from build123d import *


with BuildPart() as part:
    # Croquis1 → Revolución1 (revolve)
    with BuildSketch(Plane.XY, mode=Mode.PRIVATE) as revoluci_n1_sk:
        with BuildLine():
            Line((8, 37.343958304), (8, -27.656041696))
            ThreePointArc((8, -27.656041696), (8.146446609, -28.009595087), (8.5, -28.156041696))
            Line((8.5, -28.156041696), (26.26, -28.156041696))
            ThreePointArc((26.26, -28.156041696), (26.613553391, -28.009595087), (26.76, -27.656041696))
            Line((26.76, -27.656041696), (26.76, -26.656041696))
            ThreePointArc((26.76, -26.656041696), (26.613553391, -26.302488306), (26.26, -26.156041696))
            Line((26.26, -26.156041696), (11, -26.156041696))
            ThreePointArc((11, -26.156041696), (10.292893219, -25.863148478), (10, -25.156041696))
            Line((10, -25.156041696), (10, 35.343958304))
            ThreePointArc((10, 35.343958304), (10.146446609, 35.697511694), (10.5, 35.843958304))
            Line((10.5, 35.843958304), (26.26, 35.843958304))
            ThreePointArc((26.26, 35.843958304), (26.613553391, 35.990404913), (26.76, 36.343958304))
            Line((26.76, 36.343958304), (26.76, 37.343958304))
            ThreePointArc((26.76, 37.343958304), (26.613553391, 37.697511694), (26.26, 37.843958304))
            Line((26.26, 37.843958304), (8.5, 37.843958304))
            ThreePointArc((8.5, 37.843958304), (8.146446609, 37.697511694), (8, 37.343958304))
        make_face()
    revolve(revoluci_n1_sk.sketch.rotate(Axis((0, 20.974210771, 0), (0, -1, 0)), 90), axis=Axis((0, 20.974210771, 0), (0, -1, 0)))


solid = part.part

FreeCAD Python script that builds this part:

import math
import FreeCAD as App
import Part
import Sketcher
from FreeCAD import Vector
Q = App.Units.Quantity

doc = App.newDocument("Part")
body = doc.addObject("PartDesign::Body", "Body")

# Sketch on XY plane
sketch1 = doc.addObject("Sketcher::SketchObject", "Sketch")
body.addObject(sketch1)
sketch1.AttachmentSupport = (doc.XY_Plane, [""])
sketch1.MapMode = "FlatFace"
sketch1.addGeometry([
    Part.LineSegment(Vector(8, 37.34, 0), Vector(8, -27.66, 0)),  # 0
    Part.ArcOfCircle(Part.Circle(Vector(8.5, -27.66, 0), Vector(0, 0, 1), 0.5), math.radians(180), math.radians(270)),  # 1
    Part.LineSegment(Vector(8.5, -28.16, 0), Vector(26.26, -28.16, 0)),  # 2
    Part.ArcOfCircle(Part.Circle(Vector(26.26, -27.66, 0), Vector(0, 0, 1), 0.5), math.radians(-90), math.radians(0)),  # 3
    Part.LineSegment(Vector(26.76, -27.66, 0), Vector(26.76, -26.66, 0)),  # 4
    Part.ArcOfCircle(Part.Circle(Vector(26.26, -26.66, 0), Vector(0, 0, 1), 0.5), math.radians(0), math.radians(90)),  # 5
    Part.LineSegment(Vector(26.26, -26.16, 0), Vector(11, -26.16, 0)),  # 6
    Part.ArcOfCircle(Part.Circle(Vector(11, -25.16, 0), Vector(0, 0, 1), 1), math.radians(180), math.radians(270)),  # 7
    Part.LineSegment(Vector(10, -25.16, 0), Vector(10, 35.34, 0)),  # 8
    Part.ArcOfCircle(Part.Circle(Vector(10.5, 35.34, 0), Vector(0, 0, 1), 0.5), math.radians(90), math.radians(180)),  # 9
    Part.LineSegment(Vector(10.5, 35.84, 0), Vector(26.26, 35.84, 0)),  # 10
    Part.ArcOfCircle(Part.Circle(Vector(26.26, 36.34, 0), Vector(0, 0, 1), 0.5), math.radians(-90), math.radians(0)),  # 11
    Part.LineSegment(Vector(26.76, 36.34, 0), Vector(26.76, 37.34, 0)),  # 12
    Part.ArcOfCircle(Part.Circle(Vector(26.26, 37.34, 0), Vector(0, 0, 1), 0.5), math.radians(0), math.radians(90)),  # 13
    Part.LineSegment(Vector(26.26, 37.84, 0), Vector(8.5, 37.84, 0)),  # 14
    Part.ArcOfCircle(Part.Circle(Vector(8.5, 37.34, 0), Vector(0, 0, 1), 0.5), math.radians(90), math.radians(180)),  # 15
], False)
sketch1.addConstraint([
    Sketcher.Constraint("Tangent", 0, 2, 1, 1),
    Sketcher.Constraint("Tangent", 1, 2, 2, 1),
    Sketcher.Constraint("Tangent", 2, 2, 3, 1),
    Sketcher.Constraint("Tangent", 3, 2, 4, 1),
    Sketcher.Constraint("Tangent", 4, 2, 5, 1),
    Sketcher.Constraint("Tangent", 5, 2, 6, 1),
    Sketcher.Constraint("Tangent", 6, 2, 7, 2),
    Sketcher.Constraint("Tangent", 7, 1, 8, 1),
    Sketcher.Constraint("Tangent", 8, 2, 9, 2),
    Sketcher.Constraint("Tangent", 9, 1, 10, 1),
    Sketcher.Constraint("Tangent", 10, 2, 11, 1),
    Sketcher.Constraint("Tangent", 11, 2, 12, 1),
    Sketcher.Constraint("Tangent", 12, 2, 13, 1),
    Sketcher.Constraint("Tangent", 13, 2, 14, 1),
    Sketcher.Constraint("Tangent", 14, 2, 15, 1),
    Sketcher.Constraint("Tangent", 15, 2, 0, 1),
    Sketcher.Constraint("Vertical", 0),
    Sketcher.Constraint("Horizontal", 2),
    Sketcher.Constraint("Vertical", 4),
    Sketcher.Constraint("Horizontal", 6),
    Sketcher.Constraint("Vertical", 8),
    Sketcher.Constraint("Horizontal", 10),
    Sketcher.Constraint("Vertical", 12),
    Sketcher.Constraint("Horizontal", 14),
    Sketcher.Constraint("Equal", 1, 3),
    Sketcher.Constraint("Equal", 3, 5),
    Sketcher.Constraint("Equal", 5, 9),
    Sketcher.Constraint("Equal", 9, 11),
    Sketcher.Constraint("Equal", 11, 13),
    Sketcher.Constraint("Equal", 13, 15),
    Sketcher.Constraint("Vertical", 5, 3, 11, 3),
    Sketcher.Constraint("Equal", 4, 12),
    Sketcher.Constraint("Radius", 7, Q("1 mm")),
    Sketcher.Constraint("Radius", 1, Q("0.5 mm")),
    Sketcher.Constraint("DistanceY", 0, 2, 0, 1, Q("65 mm")),
    Sketcher.Constraint("DistanceY", 4, 1, 4, 2, Q("1 mm")),
    Sketcher.Constraint("DistanceX", -1, 1, 7, 3, Q("11 mm")),
    Sketcher.Constraint("DistanceX", -1, 1, 0, 2, Q("8 mm")),
    Sketcher.Constraint("DistanceX", 2, 1, 2, 2, Q("17.76 mm")),
    Sketcher.Constraint("DistanceY", 1, 3, -1, 1, Q("27.656042 mm")),
])
revolution = doc.addObject("PartDesign::Revolution", "Revolution")
body.addObject(revolution)
revolution.Profile = sketch1
revolution.ReferenceAxis = (sketch1, ["V_Axis"])
revolution.Angle = 360

doc.recompute()
